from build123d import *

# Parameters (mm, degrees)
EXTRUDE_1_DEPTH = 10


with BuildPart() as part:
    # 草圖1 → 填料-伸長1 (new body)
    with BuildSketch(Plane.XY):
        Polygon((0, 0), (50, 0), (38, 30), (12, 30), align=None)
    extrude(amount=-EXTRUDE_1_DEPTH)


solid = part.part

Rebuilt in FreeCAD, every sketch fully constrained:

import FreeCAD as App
import Part
import Sketcher

V = App.Vector
Q = App.Units.Quantity

doc = App.newDocument("Part")
params = doc.addObject("Spreadsheet::Sheet", "Params")
for row, (alias, value) in enumerate([
    ("sketch1_width", "50 mm"),
    ("sketch1_width2", "26 mm"),
    ("pad1_length", "10 mm"),
], start=1):
    params.set(f"A{row}", alias)
    params.set(f"B{row}", "=" + value)
    params.setAlias(f"B{row}", alias)

body = doc.addObject("PartDesign::Body", "Body")

# Sketch on XY plane
sketch1 = body.newObject("Sketcher::SketchObject", "Sketch")
sketch1.AttachmentSupport = (doc.getObject("XY_Plane"), [""])
sketch1.MapMode = "FlatFace"
sketch1.addGeometry(Part.LineSegment(V(0, 0, 0), V(50, 0, 0)), False)
sketch1.addGeometry(Part.LineSegment(V(50, 0, 0), V(38, 30, 0)), False)
sketch1.addGeometry(Part.LineSegment(V(38, 30, 0), V(12, 30, 0)), False)
sketch1.addGeometry(Part.LineSegment(V(12, 30, 0), V(0, 0, 0)), False)
sketch1.addConstraint(Sketcher.Constraint("Coincident", 0, 2, 1, 1))
sketch1.addConstraint(Sketcher.Constraint("Coincident", 1, 2, 2, 1))
sketch1.addConstraint(Sketcher.Constraint("Coincident", 2, 2, 3, 1))
sketch1.addConstraint(Sketcher.Constraint("Coincident", 3, 2, 0, 1))
sketch1.addConstraint(Sketcher.Constraint("Horizontal", 0))
sketch1.addConstraint(Sketcher.Constraint("Horizontal", 2))
sketch1.addConstraint(Sketcher.Constraint("Coincident", 3, 2, -1, 1))
sketch1.addConstraint(Sketcher.Constraint("Equal", 1, 3))
sketch1.addConstraint(Sketcher.Constraint("DistanceX", 0, 1, 0, 2, Q("50 mm")))
sketch1.addConstraint(Sketcher.Constraint("DistanceX", 2, 2, 2, 1, Q("26 mm")))
sketch1.addConstraint(Sketcher.Constraint("DistanceY", -1, 1, 1, 2, Q("30 mm")))
sketch1.setExpression("Constraints[8]", "Params.sketch1_width")
sketch1.setExpression("Constraints[9]", "Params.sketch1_width2")
pad1 = body.newObject("PartDesign::Pad", "Pad")
pad1.Profile = sketch1
pad1.setExpression("Length", "Params.pad1_length")
pad1.Reversed = True

doc.recompute()
